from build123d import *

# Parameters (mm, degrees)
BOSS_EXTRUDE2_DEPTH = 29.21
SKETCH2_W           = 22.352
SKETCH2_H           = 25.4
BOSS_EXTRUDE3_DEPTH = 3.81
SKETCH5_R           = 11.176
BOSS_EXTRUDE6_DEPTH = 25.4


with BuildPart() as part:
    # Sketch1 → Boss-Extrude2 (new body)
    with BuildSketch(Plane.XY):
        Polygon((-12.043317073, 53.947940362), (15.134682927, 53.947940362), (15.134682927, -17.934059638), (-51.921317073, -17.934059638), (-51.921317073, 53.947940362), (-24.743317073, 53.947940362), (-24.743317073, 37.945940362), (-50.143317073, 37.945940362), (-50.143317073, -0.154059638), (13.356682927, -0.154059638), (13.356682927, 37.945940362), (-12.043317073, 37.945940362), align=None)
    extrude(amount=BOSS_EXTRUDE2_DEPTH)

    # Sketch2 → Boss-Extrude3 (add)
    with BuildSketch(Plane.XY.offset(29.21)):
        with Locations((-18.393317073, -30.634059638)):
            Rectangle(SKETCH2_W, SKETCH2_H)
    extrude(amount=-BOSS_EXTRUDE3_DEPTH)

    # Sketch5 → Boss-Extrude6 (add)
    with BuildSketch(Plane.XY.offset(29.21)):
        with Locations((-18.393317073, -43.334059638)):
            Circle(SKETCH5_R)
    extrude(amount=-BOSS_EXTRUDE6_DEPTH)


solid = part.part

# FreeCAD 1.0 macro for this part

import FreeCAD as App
import Part
import Sketcher
Q = App.Units.Quantity


def add_polygon(sketch, points):
    """Adds a closed chain of lines whose ends are joined by coincident constraints."""
    first, n = sketch.GeometryCount, len(points)
    for a, b in zip(points, points[1:] + points[:1]):
        sketch.addGeometry(Part.LineSegment(App.Vector(*a, 0), App.Vector(*b, 0)), False)
    for i in range(n):
        sketch.addConstraint(Sketcher.Constraint("Coincident", first + i, 2, first + (i + 1) % n, 1))

doc = App.newDocument("Part")
body = doc.addObject("PartDesign::Body", "Body")

sketch1 = doc.addObject("Sketcher::SketchObject", "Sketch")
body.addObject(sketch1)
sketch1.AttachmentSupport = (doc.XY_Plane, [""])
sketch1.MapMode = "FlatFace"
add_polygon(sketch1, [(15, 54), (-12, 54), (-12, 38), (13, 38), (13, 0), (-50, 0), (-50, 38), (-25, 38), (-25, 54), (-52, 54), (-52, -18), (15, -18)])
sketch1.addConstraint([
    Sketcher.Constraint("Horizontal", 0),
    Sketcher.Constraint("Vertical", 1),
    Sketcher.Constraint("Horizontal", 2),
    Sketcher.Constraint("Vertical", 3),
    Sketcher.Constraint("Horizontal", 4),
    Sketcher.Constraint("Vertical", 5),
    Sketcher.Constraint("Horizontal", 6),
    Sketcher.Constraint("Vertical", 7),
    Sketcher.Constraint("Horizontal", 8),
    Sketcher.Constraint("Vertical", 9),
    Sketcher.Constraint("Horizontal", 10),
    Sketcher.Constraint("Vertical", 11),
    Sketcher.Constraint("Horizontal", 2, 2, 5, 2),
    Sketcher.Constraint("Horizontal", 0, 2, 7, 2),
    Sketcher.Constraint("Equal", 2, 6),
    Sketcher.Constraint("Equal", 0, 8),
    Sketcher.Constraint("DistanceX", 2, 1, 2, 2, Q("1 in")),
    Sketcher.Constraint("DistanceX", 4, 2, 4, 1, Q("2.5 in")),
    Sketcher.Constraint("DistanceY", 3, 2, 3, 1, Q("1.5 in")),
    Sketcher.Constraint("DistanceX", 0, 2, 0, 1, Q("1.07 in")),
    Sketcher.Constraint("DistanceY", 1, 2, 1, 1, Q("0.63 in")),
    Sketcher.Constraint("DistanceY", 9, 2, 9, 1, Q("2.83 in")),
    Sketcher.Constraint("DistanceY", -1, 1, 0, 2, 53.94794),
    Sketcher.Constraint("DistanceX", 0, 2, -1, 1, 12.043317),
])
pad1 = doc.addObject("PartDesign::Pad", "Pad")
body.addObject(pad1)
pad1.Profile = sketch1
pad1.Length = Q("1.15 in")

sketch2 = doc.addObject("Sketcher::SketchObject", "Sketch001")
body.addObject(sketch2)
sketch2.AttachmentSupport = (doc.XY_Plane, [""])
sketch2.MapMode = "FlatFace"
sketch2.AttachmentOffset = App.Placement(App.Vector(0, 0, 1.15 * 25.4), App.Rotation())
add_polygon(sketch2, [(-30, -18), (-30, -43), (-7, -43), (-7, -18)])
sketch2.addConstraint([
    Sketcher.Constraint("Vertical", 0),
    Sketcher.Constraint("Horizontal", 1),
    Sketcher.Constraint("Vertical", 2),
    Sketcher.Constraint("Horizontal", 3),
    Sketcher.Constraint("DistanceY", 0, 2, 0, 1, Q("1 in")),
    Sketcher.Constraint("DistanceX", 1, 1, 1, 2, Q("0.88 in")),
    Sketcher.Constraint("DistanceY", 0, 2, -1, 1, 43.33406),
    Sketcher.Constraint("DistanceX", 0, 2, -1, 1, 29.569317),
])
pad2 = doc.addObject("PartDesign::Pad", "Pad001")
body.addObject(pad2)
pad2.Profile = sketch2
pad2.Length = Q("0.15 in")
pad2.Reversed = True

sketch3 = doc.addObject("Sketcher::SketchObject", "Sketch002")
body.addObject(sketch3)
sketch3.AttachmentSupport = (doc.XY_Plane, [""])
sketch3.MapMode = "FlatFace"
sketch3.AttachmentOffset = App.Placement(App.Vector(0, 0, 1.15 * 25.4), App.Rotation())
sketch3.addGeometry(Part.Circle(App.Vector(-18, -43, 0), App.Vector(0, 0, 1), 11), False)
sketch3.addConstraint([
    Sketcher.Constraint("Diameter", 0, Q("0.88 in")),
    Sketcher.Constraint("DistanceY", 0, 3, -1, 1, 43.33406),
    Sketcher.Constraint("DistanceX", 0, 3, -1, 1, 18.393317),
])
pad3 = doc.addObject("PartDesign::Pad", "Pad002")
body.addObject(pad3)
pad3.Profile = sketch3
pad3.Length = Q("1 in")
pad3.Reversed = True

doc.recompute()
